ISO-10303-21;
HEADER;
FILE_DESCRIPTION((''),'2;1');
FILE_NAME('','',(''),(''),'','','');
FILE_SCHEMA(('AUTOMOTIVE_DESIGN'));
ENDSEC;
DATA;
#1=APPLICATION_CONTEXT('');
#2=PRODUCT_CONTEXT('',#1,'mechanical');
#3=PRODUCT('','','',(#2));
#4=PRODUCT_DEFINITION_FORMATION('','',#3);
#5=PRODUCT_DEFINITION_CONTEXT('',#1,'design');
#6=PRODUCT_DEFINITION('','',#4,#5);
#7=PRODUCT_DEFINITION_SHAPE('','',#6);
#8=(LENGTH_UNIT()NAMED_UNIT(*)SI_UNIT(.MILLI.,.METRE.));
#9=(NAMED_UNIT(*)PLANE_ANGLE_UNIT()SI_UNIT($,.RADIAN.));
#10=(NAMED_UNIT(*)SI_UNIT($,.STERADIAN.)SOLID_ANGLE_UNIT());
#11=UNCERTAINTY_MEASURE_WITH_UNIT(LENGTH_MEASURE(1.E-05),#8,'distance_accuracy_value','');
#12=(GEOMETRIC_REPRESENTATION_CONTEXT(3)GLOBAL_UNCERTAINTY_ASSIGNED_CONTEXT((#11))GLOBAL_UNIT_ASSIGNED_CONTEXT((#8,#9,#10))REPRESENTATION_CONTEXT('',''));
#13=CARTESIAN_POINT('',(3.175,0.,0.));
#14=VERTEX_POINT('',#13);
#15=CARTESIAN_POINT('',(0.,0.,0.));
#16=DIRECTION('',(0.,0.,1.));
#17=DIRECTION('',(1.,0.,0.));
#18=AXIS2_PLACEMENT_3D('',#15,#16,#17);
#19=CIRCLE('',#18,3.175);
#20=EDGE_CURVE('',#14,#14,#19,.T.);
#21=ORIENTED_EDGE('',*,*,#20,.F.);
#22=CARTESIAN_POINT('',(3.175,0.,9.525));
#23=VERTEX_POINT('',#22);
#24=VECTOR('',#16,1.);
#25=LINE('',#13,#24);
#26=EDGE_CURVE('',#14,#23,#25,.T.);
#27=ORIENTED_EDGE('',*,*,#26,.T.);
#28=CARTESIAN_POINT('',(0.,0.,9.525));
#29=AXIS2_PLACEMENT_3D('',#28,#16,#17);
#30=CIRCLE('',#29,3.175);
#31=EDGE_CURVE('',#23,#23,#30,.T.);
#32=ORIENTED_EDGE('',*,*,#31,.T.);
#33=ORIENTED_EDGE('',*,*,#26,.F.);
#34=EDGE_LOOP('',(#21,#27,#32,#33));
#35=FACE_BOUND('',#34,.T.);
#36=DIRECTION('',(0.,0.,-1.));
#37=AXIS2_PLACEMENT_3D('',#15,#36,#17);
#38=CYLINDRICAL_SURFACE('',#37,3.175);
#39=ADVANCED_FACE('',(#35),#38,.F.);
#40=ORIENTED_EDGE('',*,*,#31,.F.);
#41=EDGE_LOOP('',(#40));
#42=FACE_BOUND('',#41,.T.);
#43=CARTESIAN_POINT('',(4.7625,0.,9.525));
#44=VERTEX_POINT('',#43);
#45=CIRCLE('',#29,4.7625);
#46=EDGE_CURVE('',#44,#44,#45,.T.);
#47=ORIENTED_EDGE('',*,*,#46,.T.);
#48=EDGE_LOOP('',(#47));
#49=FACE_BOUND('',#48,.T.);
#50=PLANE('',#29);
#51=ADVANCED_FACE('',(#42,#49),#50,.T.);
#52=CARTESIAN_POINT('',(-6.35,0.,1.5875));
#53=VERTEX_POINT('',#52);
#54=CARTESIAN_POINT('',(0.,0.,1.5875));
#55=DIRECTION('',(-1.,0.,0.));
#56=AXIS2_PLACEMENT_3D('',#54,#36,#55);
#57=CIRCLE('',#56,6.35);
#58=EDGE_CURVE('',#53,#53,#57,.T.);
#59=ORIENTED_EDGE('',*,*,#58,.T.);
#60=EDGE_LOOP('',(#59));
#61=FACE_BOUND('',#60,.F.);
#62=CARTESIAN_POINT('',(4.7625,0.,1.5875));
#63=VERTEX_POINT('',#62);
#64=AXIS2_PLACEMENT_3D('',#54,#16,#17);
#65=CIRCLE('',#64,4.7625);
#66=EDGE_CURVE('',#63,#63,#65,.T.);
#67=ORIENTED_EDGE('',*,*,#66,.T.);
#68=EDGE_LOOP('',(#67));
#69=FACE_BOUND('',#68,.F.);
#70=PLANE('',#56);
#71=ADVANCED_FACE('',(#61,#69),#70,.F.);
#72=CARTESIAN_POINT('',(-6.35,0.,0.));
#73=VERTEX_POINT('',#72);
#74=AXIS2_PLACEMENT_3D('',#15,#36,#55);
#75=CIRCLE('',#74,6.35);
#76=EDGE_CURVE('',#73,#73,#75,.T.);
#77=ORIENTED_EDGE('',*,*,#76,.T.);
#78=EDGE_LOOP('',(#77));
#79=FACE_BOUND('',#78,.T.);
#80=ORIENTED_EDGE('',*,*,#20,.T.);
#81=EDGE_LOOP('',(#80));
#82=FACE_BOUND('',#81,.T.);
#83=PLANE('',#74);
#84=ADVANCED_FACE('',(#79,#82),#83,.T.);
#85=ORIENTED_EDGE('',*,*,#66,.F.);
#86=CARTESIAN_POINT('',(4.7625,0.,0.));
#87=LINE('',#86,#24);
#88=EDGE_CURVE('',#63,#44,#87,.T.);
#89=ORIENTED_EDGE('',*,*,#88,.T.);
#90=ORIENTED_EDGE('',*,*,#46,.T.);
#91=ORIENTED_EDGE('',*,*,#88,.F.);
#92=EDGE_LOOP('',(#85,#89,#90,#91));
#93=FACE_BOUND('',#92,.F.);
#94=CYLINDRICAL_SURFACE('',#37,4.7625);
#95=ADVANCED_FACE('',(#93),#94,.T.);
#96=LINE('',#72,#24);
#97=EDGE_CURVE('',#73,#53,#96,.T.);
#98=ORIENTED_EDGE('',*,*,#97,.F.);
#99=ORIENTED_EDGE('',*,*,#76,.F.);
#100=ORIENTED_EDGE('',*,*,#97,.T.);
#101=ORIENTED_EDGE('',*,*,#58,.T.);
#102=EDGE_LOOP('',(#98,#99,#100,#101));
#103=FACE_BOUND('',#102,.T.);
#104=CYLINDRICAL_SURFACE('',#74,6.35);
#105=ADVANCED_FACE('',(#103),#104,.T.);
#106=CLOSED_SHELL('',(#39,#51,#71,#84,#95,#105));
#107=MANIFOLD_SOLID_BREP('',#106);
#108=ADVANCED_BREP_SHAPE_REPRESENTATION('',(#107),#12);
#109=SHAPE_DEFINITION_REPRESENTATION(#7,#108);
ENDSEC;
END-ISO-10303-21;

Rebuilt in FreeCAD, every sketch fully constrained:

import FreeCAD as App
import Part
import Sketcher

V = App.Vector
Q = App.Units.Quantity

doc = App.newDocument("Part")
body = doc.addObject("PartDesign::Body", "Body")

# Sketch on XY plane
sketch1 = body.newObject("Sketcher::SketchObject", "Sketch")
sketch1.AttachmentSupport = (doc.getObject("XY_Plane"), [""])
sketch1.MapMode = "FlatFace"
sketch1.addGeometry(Part.Circle(V(0, 0, 0), V(0, 0, 1), 4.8), False)
sketch1.addGeometry(Part.Circle(V(0, 0, 0), V(0, 0, 1), 3.2), False)
sketch1.addConstraint(Sketcher.Constraint("Coincident", 0, 3, -1, 1))
sketch1.addConstraint(Sketcher.Constraint("Coincident", 1, 3, -1, 1))
sketch1.addConstraint(Sketcher.Constraint("Diameter", 1, Q("0.25 in")))
sketch1.addConstraint(Sketcher.Constraint("Diameter", 0, Q("0.375 in")))
pad1 = body.newObject("PartDesign::Pad", "Pad")
pad1.Profile = sketch1
pad1.Length = Q("0.375 in")

# Sketch on XY plane
sketch2 = body.newObject("Sketcher::SketchObject", "Sketch001")
sketch2.AttachmentSupport = (doc.getObject("XY_Plane"), [""])
sketch2.MapMode = "FlatFace"
sketch2.addGeometry(Part.Circle(V(0, 0, 0), V(0, 0, 1), 6.3), False)
sketch2.addGeometry(Part.Circle(V(0, 0, 0), V(0, 0, 1), 4.8), False)
sketch2.addConstraint(Sketcher.Constraint("Coincident", 0, 3, -1, 1))
sketch2.addConstraint(Sketcher.Constraint("Coincident", 1, 3, -1, 1))
sketch2.addConstraint(Sketcher.Constraint("Diameter", 0, Q("0.5 in")))
sketch2.addConstraint(Sketcher.Constraint("Diameter", 1, Q("0.375 in")))
pad2 = body.newObject("PartDesign::Pad", "Pad001")
pad2.Profile = sketch2
pad2.Length = Q("0.0625 in")

doc.recompute()
